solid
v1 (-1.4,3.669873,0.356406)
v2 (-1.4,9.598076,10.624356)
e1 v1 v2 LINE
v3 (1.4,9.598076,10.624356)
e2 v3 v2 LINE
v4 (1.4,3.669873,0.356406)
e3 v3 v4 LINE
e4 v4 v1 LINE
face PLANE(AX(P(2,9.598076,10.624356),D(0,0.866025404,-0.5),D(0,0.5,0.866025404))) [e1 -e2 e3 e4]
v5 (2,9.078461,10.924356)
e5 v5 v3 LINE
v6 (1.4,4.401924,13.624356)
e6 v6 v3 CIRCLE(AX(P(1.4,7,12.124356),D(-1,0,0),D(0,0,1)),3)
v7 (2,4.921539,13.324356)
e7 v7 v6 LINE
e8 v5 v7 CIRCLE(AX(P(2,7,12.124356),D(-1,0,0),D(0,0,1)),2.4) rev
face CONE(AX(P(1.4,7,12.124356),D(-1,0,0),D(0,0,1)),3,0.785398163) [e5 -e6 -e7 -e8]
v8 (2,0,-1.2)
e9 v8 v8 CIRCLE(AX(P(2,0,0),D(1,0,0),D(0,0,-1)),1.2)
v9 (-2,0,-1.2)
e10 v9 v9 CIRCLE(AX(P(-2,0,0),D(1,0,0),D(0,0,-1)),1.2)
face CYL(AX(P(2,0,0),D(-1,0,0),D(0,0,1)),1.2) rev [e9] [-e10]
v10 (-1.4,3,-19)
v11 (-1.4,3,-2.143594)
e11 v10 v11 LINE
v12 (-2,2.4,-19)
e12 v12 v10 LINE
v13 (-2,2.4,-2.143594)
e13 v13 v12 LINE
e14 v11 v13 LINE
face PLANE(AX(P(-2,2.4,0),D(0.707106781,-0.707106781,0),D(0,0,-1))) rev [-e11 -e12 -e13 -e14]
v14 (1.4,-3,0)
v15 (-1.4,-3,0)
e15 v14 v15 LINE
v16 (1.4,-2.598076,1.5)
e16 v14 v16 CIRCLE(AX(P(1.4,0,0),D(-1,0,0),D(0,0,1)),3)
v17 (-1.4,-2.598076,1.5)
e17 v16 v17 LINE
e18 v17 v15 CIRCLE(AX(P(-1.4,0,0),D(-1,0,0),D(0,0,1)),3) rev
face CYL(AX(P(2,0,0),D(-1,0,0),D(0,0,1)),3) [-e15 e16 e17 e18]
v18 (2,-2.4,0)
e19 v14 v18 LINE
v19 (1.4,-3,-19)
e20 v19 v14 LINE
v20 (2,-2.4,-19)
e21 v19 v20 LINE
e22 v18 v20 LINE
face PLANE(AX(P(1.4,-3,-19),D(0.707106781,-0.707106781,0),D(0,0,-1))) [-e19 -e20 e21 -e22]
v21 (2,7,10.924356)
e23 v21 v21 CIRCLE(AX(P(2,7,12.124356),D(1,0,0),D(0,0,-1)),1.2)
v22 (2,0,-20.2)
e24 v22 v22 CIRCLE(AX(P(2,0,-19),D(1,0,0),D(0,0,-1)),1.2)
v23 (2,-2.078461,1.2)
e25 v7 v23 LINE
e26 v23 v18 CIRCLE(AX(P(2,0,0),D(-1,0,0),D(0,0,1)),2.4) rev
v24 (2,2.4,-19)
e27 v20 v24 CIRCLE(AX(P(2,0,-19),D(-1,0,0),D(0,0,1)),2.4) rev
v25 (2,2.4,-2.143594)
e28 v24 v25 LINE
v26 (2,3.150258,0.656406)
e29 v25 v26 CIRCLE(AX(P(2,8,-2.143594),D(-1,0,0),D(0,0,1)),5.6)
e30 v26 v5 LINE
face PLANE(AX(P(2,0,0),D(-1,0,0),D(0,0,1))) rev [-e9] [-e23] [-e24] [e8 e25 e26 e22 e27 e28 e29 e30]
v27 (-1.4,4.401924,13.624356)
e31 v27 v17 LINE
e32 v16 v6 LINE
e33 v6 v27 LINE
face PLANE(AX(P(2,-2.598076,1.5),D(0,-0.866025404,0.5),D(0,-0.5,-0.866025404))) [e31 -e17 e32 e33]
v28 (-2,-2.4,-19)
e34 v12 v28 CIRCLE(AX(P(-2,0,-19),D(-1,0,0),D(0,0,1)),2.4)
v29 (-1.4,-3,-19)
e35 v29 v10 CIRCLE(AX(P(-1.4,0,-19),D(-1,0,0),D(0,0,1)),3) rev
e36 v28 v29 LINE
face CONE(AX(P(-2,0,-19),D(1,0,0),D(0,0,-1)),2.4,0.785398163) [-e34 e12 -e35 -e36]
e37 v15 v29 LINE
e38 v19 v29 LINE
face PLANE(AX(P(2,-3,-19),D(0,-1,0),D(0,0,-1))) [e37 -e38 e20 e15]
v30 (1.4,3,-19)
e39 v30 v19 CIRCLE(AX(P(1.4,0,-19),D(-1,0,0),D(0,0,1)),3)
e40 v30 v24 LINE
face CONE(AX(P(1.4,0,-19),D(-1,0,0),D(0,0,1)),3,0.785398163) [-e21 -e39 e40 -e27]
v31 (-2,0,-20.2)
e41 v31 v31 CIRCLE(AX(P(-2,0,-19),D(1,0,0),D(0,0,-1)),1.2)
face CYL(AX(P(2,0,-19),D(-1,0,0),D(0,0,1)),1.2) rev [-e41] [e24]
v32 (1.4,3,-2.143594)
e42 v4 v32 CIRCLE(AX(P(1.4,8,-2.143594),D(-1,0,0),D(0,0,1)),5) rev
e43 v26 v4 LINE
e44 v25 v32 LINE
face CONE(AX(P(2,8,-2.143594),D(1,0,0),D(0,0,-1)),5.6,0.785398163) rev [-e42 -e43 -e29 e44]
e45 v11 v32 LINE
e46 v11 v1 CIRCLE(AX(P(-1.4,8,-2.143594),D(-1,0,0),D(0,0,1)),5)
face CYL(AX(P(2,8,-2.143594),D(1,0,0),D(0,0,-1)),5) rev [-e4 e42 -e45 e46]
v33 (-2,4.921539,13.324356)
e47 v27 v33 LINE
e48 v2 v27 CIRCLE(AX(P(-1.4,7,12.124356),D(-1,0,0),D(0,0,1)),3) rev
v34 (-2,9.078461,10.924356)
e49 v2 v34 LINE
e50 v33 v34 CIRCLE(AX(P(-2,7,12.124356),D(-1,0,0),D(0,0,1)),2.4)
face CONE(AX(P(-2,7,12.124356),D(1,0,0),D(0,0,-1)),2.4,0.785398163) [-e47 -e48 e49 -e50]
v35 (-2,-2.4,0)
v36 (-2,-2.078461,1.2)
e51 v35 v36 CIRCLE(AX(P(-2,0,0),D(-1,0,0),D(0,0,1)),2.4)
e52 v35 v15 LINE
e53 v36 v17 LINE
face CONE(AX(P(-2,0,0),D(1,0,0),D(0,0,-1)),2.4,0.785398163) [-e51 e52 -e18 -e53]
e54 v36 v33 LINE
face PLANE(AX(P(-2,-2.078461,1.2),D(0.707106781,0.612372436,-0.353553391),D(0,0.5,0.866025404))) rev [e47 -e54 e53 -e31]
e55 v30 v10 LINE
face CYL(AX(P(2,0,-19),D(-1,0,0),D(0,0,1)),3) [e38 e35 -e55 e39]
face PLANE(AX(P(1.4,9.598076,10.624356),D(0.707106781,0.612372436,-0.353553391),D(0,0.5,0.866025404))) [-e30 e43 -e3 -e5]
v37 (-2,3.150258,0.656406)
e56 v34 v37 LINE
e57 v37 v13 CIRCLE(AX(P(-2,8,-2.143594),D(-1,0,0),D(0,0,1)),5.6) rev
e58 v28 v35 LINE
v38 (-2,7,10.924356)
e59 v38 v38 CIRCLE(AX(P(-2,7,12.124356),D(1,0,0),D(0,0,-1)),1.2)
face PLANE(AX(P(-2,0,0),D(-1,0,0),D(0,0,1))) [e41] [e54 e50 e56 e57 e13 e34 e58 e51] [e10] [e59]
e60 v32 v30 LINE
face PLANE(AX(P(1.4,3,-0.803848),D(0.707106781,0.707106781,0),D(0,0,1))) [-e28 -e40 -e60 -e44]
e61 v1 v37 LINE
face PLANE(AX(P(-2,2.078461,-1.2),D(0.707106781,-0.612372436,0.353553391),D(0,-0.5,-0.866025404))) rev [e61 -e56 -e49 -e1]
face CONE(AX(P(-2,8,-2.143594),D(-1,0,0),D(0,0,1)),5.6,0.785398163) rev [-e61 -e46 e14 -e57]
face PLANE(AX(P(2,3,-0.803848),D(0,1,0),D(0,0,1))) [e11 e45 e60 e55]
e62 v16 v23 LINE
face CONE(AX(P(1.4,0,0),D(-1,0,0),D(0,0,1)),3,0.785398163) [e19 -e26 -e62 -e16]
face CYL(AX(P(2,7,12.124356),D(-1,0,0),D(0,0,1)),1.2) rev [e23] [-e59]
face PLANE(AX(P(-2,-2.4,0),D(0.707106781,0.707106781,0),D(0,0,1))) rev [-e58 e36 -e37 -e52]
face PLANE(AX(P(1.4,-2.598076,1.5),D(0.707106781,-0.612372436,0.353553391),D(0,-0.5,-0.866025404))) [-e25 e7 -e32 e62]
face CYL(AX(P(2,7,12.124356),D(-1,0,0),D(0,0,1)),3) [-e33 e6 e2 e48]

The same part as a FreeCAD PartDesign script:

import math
import FreeCAD as App
import Part
import Sketcher
from FreeCAD import Vector
Q = App.Units.Quantity


def edges_at(feature, points):
    """Names of the edges that pass closest to the given points."""
    edges = feature.Shape.Edges
    near = lambda p: min(range(len(edges)), key=lambda i: edges[i].distToShape(Part.Vertex(*p))[0])
    return sorted({f"Edge{near(p) + 1}" for p in points})

doc = App.newDocument("Part")
params = doc.addObject("Spreadsheet::Sheet", "Params")
for row, (alias, value) in enumerate([
    ("sketch1_radius", "3 mm"),
    ("sketch1_diameter", "2.4 mm"),
    ("sketch1_height", "19 mm"),
    ("sketch1_length", "14 mm"),
    ("pad1_length", "4 mm"),
    ("fillet_radius", "5 mm"),
    ("chamfer_size", "0.6 mm"),
], start=1):
    params.set(f"A{row}", alias)
    params.set(f"B{row}", "=" + value)
    params.setAlias(f"B{row}", alias)

body = doc.addObject("PartDesign::Body", "Body")

# Sketch on YZ plane
sketch1 = doc.addObject("Sketcher::SketchObject", "Sketch")
body.addObject(sketch1)
sketch1.AttachmentSupport = (doc.YZ_Plane, [""])
sketch1.MapMode = "FlatFace"
sketch1.addGeometry(Part.LineSegment(Vector(-3, 0, 0), Vector(-3, -19, 0)), False)
sketch1.addGeometry(Part.ArcOfCircle(Part.Circle(Vector(0, -19, 0), Vector(0, 0, 1), 3), math.radians(180), math.radians(360)), False)
sketch1.addGeometry(Part.LineSegment(Vector(3, -19, 0), Vector(3, -0.8, 0)), False)
sketch1.addGeometry(Part.LineSegment(Vector(3, -0.8, 0), Vector(9.6, 10.6, 0)), False)
sketch1.addGeometry(Part.ArcOfCircle(Part.Circle(Vector(7, 12.1, 0), Vector(0, 0, 1), 3), math.radians(-30), math.radians(150)), False)
sketch1.addGeometry(Part.LineSegment(Vector(4.4, 13.6, 0), Vector(-2.6, 1.5, 0)), False)
sketch1.addGeometry(Part.ArcOfCircle(Part.Circle(Vector(0, 0, 0), Vector(0, 0, 1), 3), math.radians(150), math.radians(180)), False)
sketch1.addGeometry(Part.Circle(Vector(0, -19, 0), Vector(0, 0, 1), 1.2), False)
sketch1.addGeometry(Part.Circle(Vector(0, 0, 0), Vector(0, 0, 1), 1.2), False)
sketch1.addGeometry(Part.Circle(Vector(7, 12.1, 0), Vector(0, 0, 1), 1.2), False)
sketch1.addConstraint(Sketcher.Constraint("Tangent", 0, 2, 1, 1))
sketch1.addConstraint(Sketcher.Constraint("Tangent", 1, 2, 2, 1))
sketch1.addConstraint(Sketcher.Constraint("Coincident", 2, 2, 3, 1))
sketch1.addConstraint(Sketcher.Constraint("Tangent", 3, 2, 4, 1))
sketch1.addConstraint(Sketcher.Constraint("Tangent", 4, 2, 5, 1))
sketch1.addConstraint(Sketcher.Constraint("Tangent", 5, 2, 6, 1))
sketch1.addConstraint(Sketcher.Constraint("Tangent", 6, 2, 0, 1))
sketch1.addConstraint(Sketcher.Constraint("Vertical", 0))
sketch1.addConstraint(Sketcher.Constraint("Vertical", 2))
sketch1.addConstraint(Sketcher.Constraint("Coincident", 6, 3, -1, 1))
sketch1.addConstraint(Sketcher.Constraint("Coincident", 8, 3, -1, 1))
sketch1.addConstraint(Sketcher.Constraint("Coincident", 7, 3, 1, 3))
sketch1.addConstraint(Sketcher.Constraint("Coincident", 9, 3, 4, 3))
sketch1.addConstraint(Sketcher.Constraint("Equal", 1, 4))
sketch1.addConstraint(Sketcher.Constraint("Equal", 4, 6))
sketch1.addConstraint(Sketcher.Constraint("Equal", 7, 8))
sketch1.addConstraint(Sketcher.Constraint("Equal", 8, 9))
sketch1.addConstraint(Sketcher.Constraint("Parallel", 3, 5))
sketch1.addConstraint(Sketcher.Constraint("Radius", 1, 3.0))
sketch1.addConstraint(Sketcher.Constraint("Diameter", 7, 2.4))
sketch1.addConstraint(Sketcher.Constraint("DistanceY", 0, 2, 0, 1, 19.0))
sketch1.addConstraint(Sketcher.Constraint("Angle", 3, Q("60 deg")))
sketch1.addConstraint(Sketcher.Constraint("Distance", 5, 14.0))
sketch1.setExpression("Constraints[18]", "Params.sketch1_radius")
sketch1.setExpression("Constraints[19]", "Params.sketch1_diameter")
sketch1.setExpression("Constraints[20]", "Params.sketch1_height")
sketch1.setExpression("Constraints[22]", "Params.sketch1_length")
pad1 = doc.addObject("PartDesign::Pad", "Pad")
body.addObject(pad1)
pad1.Profile = sketch1
pad1.setExpression("Length", "Params.pad1_length")
pad1.Midplane = True
doc.recompute()

fillet = doc.addObject("PartDesign::Fillet", "Fillet")
body.addObject(fillet)
fillet.Base = (pad1, edges_at(pad1, [(0, 3, -0.804)]))
fillet.setExpression("Radius", "Params.fillet_radius")
doc.recompute()

chamfer = doc.addObject("PartDesign::Chamfer", "Chamfer")
body.addObject(chamfer)
chamfer.Base = (fillet, edges_at(fillet, [
    (-2, -2.898, 0.776),
    (2, 8.5, 14.722),
    (2, 6.634, 5.49),
    (2, 0, -22),
    (2, -3, -9.5),
    (-2, 3, -10.572),
    (2, 3, -10.572),
    (-2, 3.17, -0.849),
    (2, 3.17, -0.849),
    (2, -2.898, 0.776),
    (-2, -3, -9.5),
    (-2, 0, -22),
    (-2, 6.634, 5.49),
    (2, 0.902, 7.562),
    (-2, 8.5, 14.722),
    (-2, 0.902, 7.562),
]))
chamfer.setExpression("Size", "Params.chamfer_size")

doc.recompute()
